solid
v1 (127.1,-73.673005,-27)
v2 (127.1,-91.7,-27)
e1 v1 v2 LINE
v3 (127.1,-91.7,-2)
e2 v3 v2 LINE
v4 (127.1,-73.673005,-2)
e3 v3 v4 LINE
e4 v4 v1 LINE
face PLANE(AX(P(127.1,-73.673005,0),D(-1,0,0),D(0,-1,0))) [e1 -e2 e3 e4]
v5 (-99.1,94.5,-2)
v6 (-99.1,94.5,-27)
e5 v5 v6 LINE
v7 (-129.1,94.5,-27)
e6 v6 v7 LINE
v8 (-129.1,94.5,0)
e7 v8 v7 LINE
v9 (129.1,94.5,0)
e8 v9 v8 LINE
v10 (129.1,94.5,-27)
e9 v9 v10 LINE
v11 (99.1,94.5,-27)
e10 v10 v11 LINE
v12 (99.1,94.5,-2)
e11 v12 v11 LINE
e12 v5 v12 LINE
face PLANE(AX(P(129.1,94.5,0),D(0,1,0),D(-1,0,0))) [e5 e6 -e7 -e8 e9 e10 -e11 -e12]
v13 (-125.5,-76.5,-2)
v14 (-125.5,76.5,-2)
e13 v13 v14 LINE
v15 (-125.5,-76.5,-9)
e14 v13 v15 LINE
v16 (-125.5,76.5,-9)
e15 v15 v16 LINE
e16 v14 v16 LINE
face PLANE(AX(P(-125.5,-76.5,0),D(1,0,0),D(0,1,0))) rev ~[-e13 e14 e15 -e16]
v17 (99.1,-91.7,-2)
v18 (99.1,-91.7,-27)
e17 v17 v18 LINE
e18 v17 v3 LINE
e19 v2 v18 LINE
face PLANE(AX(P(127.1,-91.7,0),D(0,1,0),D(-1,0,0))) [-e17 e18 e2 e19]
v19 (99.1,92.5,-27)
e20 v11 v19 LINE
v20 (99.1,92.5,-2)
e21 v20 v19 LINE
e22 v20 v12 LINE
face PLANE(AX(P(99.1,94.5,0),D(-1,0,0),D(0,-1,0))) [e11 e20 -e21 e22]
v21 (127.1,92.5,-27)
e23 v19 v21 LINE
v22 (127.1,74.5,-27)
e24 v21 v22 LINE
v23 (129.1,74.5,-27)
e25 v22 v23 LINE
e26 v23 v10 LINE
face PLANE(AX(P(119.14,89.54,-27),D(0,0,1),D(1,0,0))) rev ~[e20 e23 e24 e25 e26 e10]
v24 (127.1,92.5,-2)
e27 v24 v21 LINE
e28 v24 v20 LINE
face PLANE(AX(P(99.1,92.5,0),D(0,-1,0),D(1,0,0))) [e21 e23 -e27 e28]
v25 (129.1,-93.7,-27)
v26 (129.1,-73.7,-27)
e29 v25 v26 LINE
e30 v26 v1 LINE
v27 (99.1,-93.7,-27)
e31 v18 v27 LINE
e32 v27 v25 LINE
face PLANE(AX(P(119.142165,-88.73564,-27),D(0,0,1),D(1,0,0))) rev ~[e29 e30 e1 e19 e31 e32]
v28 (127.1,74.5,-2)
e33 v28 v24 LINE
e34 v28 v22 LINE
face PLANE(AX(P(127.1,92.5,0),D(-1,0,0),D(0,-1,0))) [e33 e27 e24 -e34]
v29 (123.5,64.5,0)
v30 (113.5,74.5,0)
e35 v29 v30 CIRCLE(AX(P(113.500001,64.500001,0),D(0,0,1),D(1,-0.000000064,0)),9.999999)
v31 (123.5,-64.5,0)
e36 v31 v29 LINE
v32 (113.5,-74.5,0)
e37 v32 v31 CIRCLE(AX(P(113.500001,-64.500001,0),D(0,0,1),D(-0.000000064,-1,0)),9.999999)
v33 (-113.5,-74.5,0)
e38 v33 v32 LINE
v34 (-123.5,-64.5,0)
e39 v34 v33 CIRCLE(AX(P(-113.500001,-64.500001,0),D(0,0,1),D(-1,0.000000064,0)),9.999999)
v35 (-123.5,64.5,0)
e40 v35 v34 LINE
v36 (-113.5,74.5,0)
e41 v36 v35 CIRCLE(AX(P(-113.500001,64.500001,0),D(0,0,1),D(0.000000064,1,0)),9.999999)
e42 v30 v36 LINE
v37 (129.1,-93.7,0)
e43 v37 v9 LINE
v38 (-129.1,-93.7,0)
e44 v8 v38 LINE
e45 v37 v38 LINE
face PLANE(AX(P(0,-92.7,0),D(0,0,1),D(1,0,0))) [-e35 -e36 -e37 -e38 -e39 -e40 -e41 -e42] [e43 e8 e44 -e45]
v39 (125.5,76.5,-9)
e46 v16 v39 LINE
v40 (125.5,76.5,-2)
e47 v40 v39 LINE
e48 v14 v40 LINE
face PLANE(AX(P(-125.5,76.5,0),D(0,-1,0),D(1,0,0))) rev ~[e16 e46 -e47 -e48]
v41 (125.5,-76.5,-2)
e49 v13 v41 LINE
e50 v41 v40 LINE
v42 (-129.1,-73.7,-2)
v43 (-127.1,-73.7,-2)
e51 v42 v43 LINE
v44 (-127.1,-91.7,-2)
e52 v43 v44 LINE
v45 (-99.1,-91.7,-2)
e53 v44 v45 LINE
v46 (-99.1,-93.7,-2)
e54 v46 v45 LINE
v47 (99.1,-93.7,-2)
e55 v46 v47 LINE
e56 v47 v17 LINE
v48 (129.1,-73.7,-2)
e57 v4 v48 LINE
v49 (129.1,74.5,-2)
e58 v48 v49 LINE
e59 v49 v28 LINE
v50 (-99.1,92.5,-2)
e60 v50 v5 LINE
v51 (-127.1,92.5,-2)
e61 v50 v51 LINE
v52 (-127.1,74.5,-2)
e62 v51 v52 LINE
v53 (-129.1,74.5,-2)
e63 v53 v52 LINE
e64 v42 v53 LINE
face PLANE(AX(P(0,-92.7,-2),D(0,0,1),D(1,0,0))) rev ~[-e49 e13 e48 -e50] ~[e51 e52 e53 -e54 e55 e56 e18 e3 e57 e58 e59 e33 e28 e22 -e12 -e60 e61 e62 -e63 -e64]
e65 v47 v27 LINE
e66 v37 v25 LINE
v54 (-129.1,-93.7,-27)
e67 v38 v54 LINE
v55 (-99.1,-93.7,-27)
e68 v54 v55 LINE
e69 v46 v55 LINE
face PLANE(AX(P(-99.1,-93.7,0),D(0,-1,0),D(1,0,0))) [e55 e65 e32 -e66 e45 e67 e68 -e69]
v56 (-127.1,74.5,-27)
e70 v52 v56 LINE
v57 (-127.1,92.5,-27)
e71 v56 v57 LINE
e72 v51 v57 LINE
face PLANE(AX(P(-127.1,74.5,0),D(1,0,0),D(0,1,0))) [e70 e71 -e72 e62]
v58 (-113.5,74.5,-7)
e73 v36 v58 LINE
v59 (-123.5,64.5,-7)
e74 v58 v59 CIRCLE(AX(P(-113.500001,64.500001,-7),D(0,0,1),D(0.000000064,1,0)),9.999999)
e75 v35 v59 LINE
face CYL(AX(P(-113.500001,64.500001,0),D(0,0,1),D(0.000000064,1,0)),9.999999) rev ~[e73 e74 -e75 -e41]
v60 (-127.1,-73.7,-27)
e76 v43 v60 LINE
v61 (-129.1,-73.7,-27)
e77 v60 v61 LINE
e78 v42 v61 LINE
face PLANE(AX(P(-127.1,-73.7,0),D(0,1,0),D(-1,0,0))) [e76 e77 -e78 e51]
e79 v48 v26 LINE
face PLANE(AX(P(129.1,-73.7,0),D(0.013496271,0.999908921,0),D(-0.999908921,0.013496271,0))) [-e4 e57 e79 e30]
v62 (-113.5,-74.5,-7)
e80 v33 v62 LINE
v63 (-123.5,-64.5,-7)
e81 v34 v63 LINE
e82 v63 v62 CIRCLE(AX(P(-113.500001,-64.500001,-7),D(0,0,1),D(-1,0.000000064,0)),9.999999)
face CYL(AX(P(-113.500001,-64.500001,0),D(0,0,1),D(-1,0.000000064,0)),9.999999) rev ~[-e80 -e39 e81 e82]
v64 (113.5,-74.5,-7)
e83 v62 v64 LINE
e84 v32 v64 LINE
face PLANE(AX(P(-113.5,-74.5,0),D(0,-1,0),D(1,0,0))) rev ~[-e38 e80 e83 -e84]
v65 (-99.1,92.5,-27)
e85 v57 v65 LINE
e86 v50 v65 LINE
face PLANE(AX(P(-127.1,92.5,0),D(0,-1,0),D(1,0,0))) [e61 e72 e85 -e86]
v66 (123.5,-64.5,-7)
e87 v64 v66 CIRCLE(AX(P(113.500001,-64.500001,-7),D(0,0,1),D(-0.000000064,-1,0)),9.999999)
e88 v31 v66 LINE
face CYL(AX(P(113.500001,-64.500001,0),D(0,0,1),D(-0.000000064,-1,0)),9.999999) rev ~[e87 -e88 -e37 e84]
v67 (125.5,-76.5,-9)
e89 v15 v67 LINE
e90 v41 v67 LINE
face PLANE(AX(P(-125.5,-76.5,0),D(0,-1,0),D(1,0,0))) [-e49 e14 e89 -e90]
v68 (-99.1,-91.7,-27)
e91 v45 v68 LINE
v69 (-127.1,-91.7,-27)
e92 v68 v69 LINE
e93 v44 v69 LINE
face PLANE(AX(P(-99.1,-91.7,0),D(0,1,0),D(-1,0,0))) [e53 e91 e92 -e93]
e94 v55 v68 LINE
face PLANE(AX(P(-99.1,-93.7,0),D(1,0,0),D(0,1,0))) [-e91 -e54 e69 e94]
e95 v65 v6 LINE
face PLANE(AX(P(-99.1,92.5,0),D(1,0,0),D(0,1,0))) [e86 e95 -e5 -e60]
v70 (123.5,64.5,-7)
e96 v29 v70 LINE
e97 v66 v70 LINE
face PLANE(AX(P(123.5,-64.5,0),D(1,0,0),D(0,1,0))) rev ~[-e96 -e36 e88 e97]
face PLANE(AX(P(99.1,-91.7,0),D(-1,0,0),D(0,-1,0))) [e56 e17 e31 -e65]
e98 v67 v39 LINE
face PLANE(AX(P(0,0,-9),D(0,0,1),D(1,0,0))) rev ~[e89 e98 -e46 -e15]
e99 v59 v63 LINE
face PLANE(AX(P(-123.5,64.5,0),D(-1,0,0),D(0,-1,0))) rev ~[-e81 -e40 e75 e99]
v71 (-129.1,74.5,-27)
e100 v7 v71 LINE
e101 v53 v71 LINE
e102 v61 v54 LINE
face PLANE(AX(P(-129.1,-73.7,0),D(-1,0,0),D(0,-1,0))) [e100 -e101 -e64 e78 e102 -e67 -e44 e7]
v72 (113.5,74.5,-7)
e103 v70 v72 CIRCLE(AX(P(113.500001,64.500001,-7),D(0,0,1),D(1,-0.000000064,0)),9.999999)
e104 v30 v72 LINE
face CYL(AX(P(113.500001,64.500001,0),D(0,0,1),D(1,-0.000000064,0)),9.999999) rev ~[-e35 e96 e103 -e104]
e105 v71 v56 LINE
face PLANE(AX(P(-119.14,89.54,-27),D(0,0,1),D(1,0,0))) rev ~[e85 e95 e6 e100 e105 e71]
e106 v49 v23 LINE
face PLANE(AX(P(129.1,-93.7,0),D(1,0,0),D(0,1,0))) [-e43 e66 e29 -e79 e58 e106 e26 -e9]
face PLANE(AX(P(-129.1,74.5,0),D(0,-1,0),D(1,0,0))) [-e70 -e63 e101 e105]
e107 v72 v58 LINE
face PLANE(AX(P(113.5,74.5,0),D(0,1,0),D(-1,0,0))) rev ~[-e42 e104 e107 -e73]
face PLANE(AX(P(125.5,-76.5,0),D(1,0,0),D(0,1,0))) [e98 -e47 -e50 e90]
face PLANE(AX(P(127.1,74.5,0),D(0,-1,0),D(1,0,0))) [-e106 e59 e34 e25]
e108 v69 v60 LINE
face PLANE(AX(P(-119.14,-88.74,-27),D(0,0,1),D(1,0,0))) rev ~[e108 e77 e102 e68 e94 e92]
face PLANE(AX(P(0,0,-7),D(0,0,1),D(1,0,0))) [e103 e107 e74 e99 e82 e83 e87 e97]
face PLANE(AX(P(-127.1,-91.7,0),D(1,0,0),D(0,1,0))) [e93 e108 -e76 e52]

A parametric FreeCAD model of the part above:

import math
import FreeCAD as App
import Part
import Sketcher
from FreeCAD import Vector


def add_polygon(sketch, points):
    """Adds a closed chain of lines whose ends are joined by coincident constraints."""
    first, n = sketch.GeometryCount, len(points)
    for a, b in zip(points, points[1:] + points[:1]):
        sketch.addGeometry(Part.LineSegment(App.Vector(*a, 0), App.Vector(*b, 0)), False)
    for i in range(n):
        sketch.addConstraint(Sketcher.Constraint("Coincident", first + i, 2, first + (i + 1) % n, 1))

doc = App.newDocument("Part")
body = doc.addObject("PartDesign::Body", "Body")
body.AllowCompound = True

# Sketch on XY plane
sketch1 = body.newObject("Sketcher::SketchObject", "Sketch")
sketch1.AttachmentSupport = (doc.getObject("XY_Plane"), [""])
sketch1.MapMode = "FlatFace"
add_polygon(sketch1, [(99.1, 94.5), (99.1, 92.5), (127.1, 92.5), (127.1, 74.5), (129.1, 74.5), (129.1, 94.5)])  # lines 0-5
add_polygon(sketch1, [(129.1, -73.7), (127.1, -73.7), (127.1, -91.7), (99.1, -91.7), (99.1, -93.7), (129.1, -93.7)])  # lines 6-11
add_polygon(sketch1, [(-127.1, -91.7), (-127.1, -73.7), (-129.1, -73.7), (-129.1, -93.7), (-99.1, -93.7), (-99.1, -91.7)])  # lines 12-17
add_polygon(sketch1, [(-127.1, 74.5), (-127.1, 92.5), (-99.1, 92.5), (-99.1, 94.5), (-129.1, 94.5), (-129.1, 74.5)])  # lines 18-23
sketch1.addConstraint([
    Sketcher.Constraint("Vertical", 0),
    Sketcher.Constraint("Horizontal", 1),
    Sketcher.Constraint("Vertical", 2),
    Sketcher.Constraint("Horizontal", 3),
    Sketcher.Constraint("Vertical", 4),
    Sketcher.Constraint("Horizontal", 5),
    Sketcher.Constraint("Vertical", 7),
    Sketcher.Constraint("Horizontal", 8),
    Sketcher.Constraint("Vertical", 9),
    Sketcher.Constraint("Horizontal", 10),
    Sketcher.Constraint("Vertical", 11),
    Sketcher.Constraint("Vertical", 12),
    Sketcher.Constraint("Horizontal", 13),
    Sketcher.Constraint("Vertical", 14),
    Sketcher.Constraint("Horizontal", 15),
    Sketcher.Constraint("Vertical", 16),
    Sketcher.Constraint("Horizontal", 17),
    Sketcher.Constraint("Vertical", 18),
    Sketcher.Constraint("Horizontal", 19),
    Sketcher.Constraint("Vertical", 20),
    Sketcher.Constraint("Horizontal", 21),
    Sketcher.Constraint("Vertical", 22),
    Sketcher.Constraint("Horizontal", 23),
    Sketcher.Constraint("Symmetric", 11, 2, 13, 2, -2),
    Sketcher.Constraint("Symmetric", 9, 2, 15, 2, -2),
    Sketcher.Constraint("Symmetric", 7, 2, 17, 2, -2),
    Sketcher.Constraint("Symmetric", 1, 2, 18, 2, -2),
    Sketcher.Constraint("Symmetric", 5, 2, 20, 2, -2),
    Sketcher.Constraint("Symmetric", 3, 2, 22, 2, -2),
    Sketcher.Constraint("Vertical", 2, 2, 6, 2),
    Sketcher.Constraint("Vertical", 5, 2, 8, 2),
    Sketcher.Constraint("Vertical", 4, 2, 10, 2),
    Sketcher.Constraint("Equal", 23, 0),
    Sketcher.Constraint("Equal", 0, 9),
    Sketcher.Constraint("Equal", 4, 11),
    Sketcher.Constraint("DistanceX", 1, 1, 1, 2, 28.0),
    Sketcher.Constraint("DistanceX", 3, 1, 3, 2, 2.0),
    Sketcher.Constraint("DistanceY", 2, 2, 2, 1, 18.0),
    Sketcher.Constraint("DistanceX", -1, 1, 0, 2, 99.1),
    Sketcher.Constraint("DistanceY", -1, 1, 0, 2, 92.5),
    Sketcher.Constraint("DistanceY", 7, 2, -1, 1, 91.7),
    Sketcher.Constraint("DistanceY", 7, 2, 7, 1, 18.026995),
])
pad1 = body.newObject("PartDesign::Pad", "Pad")
pad1.Profile = sketch1
pad1.Length = 27
pad1.Reversed = True

# Sketch on XY plane
sketch2 = body.newObject("Sketcher::SketchObject", "Sketch001")
sketch2.AttachmentSupport = (doc.getObject("XY_Plane"), [""])
sketch2.MapMode = "FlatFace"
add_polygon(sketch2, [(-127, 92), (-127, -92), (127, -92), (127, 92)])  # lines 0-3
sketch2.addGeometry(Part.LineSegment(Vector(-124, -64, 0), Vector(-124, 64, 0)), False)  # 4
sketch2.addGeometry(Part.ArcOfCircle(Part.Circle(Vector(-114, 65, 0), Vector(0, 0, 1), 10), math.radians(90), math.radians(180)), False)  # 5
sketch2.addGeometry(Part.LineSegment(Vector(-114, 74, 0), Vector(114, 74, 0)), False)  # 6
sketch2.addGeometry(Part.ArcOfCircle(Part.Circle(Vector(114, 65, 0), Vector(0, 0, 1), 10), math.radians(0), math.radians(90)), False)  # 7
sketch2.addGeometry(Part.LineSegment(Vector(124, 64, 0), Vector(124, -64, 0)), False)  # 8
sketch2.addGeometry(Part.ArcOfCircle(Part.Circle(Vector(114, -65, 0), Vector(0, 0, 1), 10), math.radians(-90), math.radians(0)), False)  # 9
sketch2.addGeometry(Part.LineSegment(Vector(114, -74, 0), Vector(-114, -74, 0)), False)  # 10
sketch2.addGeometry(Part.ArcOfCircle(Part.Circle(Vector(-114, -65, 0), Vector(0, 0, 1), 10), math.radians(180), math.radians(270)), False)  # 11
sketch2.addConstraint([
    Sketcher.Constraint("Tangent", 4, 2, 5, 2),
    Sketcher.Constraint("Tangent", 5, 1, 6, 1),
    Sketcher.Constraint("Tangent", 6, 2, 7, 2),
    Sketcher.Constraint("Tangent", 7, 1, 8, 1),
    Sketcher.Constraint("Tangent", 8, 2, 9, 2),
    Sketcher.Constraint("Tangent", 9, 1, 10, 1),
    Sketcher.Constraint("Tangent", 10, 2, 11, 2),
    Sketcher.Constraint("Tangent", 11, 1, 4, 1),
    Sketcher.Constraint("Vertical", 0),
    Sketcher.Constraint("Horizontal", 1),
    Sketcher.Constraint("Vertical", 2),
    Sketcher.Constraint("Horizontal", 3),
    Sketcher.Constraint("Vertical", 4),
    Sketcher.Constraint("Horizontal", 6),
    Sketcher.Constraint("Vertical", 8),
    Sketcher.Constraint("Horizontal", 10),
    Sketcher.Constraint("Equal", 5, 7),
    Sketcher.Constraint("Equal", 7, 9),
    Sketcher.Constraint("Equal", 9, 11),
    Sketcher.Constraint("Symmetric", 5, 3, 9, 3, -1, 1),
    Sketcher.Constraint("Radius", 5, 9.999999),
    Sketcher.Constraint("DistanceX", 6, 1, 6, 2, 227.0),
    Sketcher.Constraint("DistanceY", 4, 1, 4, 2, 129.0),
    Sketcher.Constraint("DistanceX", 1, 1, 1, 2, 254.2),
    Sketcher.Constraint("DistanceY", 0, 2, 0, 1, 184.2),
    Sketcher.Constraint("DistanceY", 7, 3, 2, 2, 27.999999),
    Sketcher.Constraint("DistanceX", 0, 2, -1, 1, 127.1),
])
pad2 = body.newObject("PartDesign::Pad", "Pad001")
pad2.Profile = sketch2
pad2.Length = 2
pad2.Reversed = True

# Sketch on XY plane
sketch3 = body.newObject("Sketcher::SketchObject", "Sketch002")
sketch3.AttachmentSupport = (doc.getObject("XY_Plane"), [""])
sketch3.MapMode = "FlatFace"
add_polygon(sketch3, [(-99.1, -91.7), (-99.1, -93.7), (99.1, -93.7), (99.1, -91.7)])  # lines 0-3
add_polygon(sketch3, [(-99.1, 94.5), (-99.1, 92.5), (99.1, 92.5), (99.1, 94.5)])  # lines 4-7
add_polygon(sketch3, [(-129.1, 74.5), (-129.1, -73.7), (-127.1, -73.7), (-127.1, 74.5)])  # lines 8-11
add_polygon(sketch3, [(129.1, 74.5), (127.1, 74.5), (127.1, -73.7), (129.1, -73.7)])  # lines 12-15
sketch3.addConstraint([
    Sketcher.Constraint("Vertical", 0),
    Sketcher.Constraint("Horizontal", 1),
    Sketcher.Constraint("Vertical", 2),
    Sketcher.Constraint("Horizontal", 3),
    Sketcher.Constraint("Vertical", 4),
    Sketcher.Constraint("Horizontal", 5),
    Sketcher.Constraint("Vertical", 6),
    Sketcher.Constraint("Horizontal", 7),
    Sketcher.Constraint("Vertical", 8),
    Sketcher.Constraint("Horizontal", 9),
    Sketcher.Constraint("Vertical", 10),
    Sketcher.Constraint("Horizontal", 11),
    Sketcher.Constraint("Horizontal", 12),
    Sketcher.Constraint("Vertical", 13),
    Sketcher.Constraint("Vertical", 15),
    Sketcher.Constraint("Symmetric", 10, 2, 12, 2, -2),
    Sketcher.Constraint("Symmetric", 8, 2, 14, 2, -2),
    Sketcher.Constraint("Vertical", 3, 2, 4, 2),
    Sketcher.Constraint("Vertical", 2, 2, 5, 2),
    Sketcher.Constraint("Equal", 12, 0),
    Sketcher.Constraint("Equal", 2, 4),
    Sketcher.Constraint("DistanceX", 9, 1, 9, 2, 2.0),
    Sketcher.Constraint("DistanceX", 1, 1, 1, 2, 198.2),
    Sketcher.Constraint("DistanceY", 8, 2, 8, 1, 148.2),
    Sketcher.Constraint("DistanceX", 8, 2, 3, 2, 30.0),
    Sketcher.Constraint("DistanceY", 3, 2, 8, 2, 18.0),
    Sketcher.Constraint("DistanceY", 10, 2, 4, 2, 18.0),
    Sketcher.Constraint("DistanceX", 5, 2, 12, 2, 28.0),
    Sketcher.Constraint("DistanceY", 0, 2, -1, 1, 93.7),
    Sketcher.Constraint("DistanceY", 13, 2, 13, 1, 148.173005),
])
pad3 = body.newObject("PartDesign::Pad", "Pad002")
pad3.Profile = sketch3
pad3.Length = 2
pad3.Reversed = True

# Sketch on XY plane
sketch4 = body.newObject("Sketcher::SketchObject", "Sketch003")
sketch4.AttachmentSupport = (doc.getObject("XY_Plane"), [""])
sketch4.MapMode = "FlatFace"
add_polygon(sketch4, [(-126, 76), (-126, -76), (126, -76), (126, 76)])  # lines 0-3
sketch4.addConstraint([
    Sketcher.Constraint("Vertical", 0),
    Sketcher.Constraint("Horizontal", 1),
    Sketcher.Constraint("Vertical", 2),
    Sketcher.Constraint("Horizontal", 3),
    Sketcher.Constraint("Symmetric", 0, 2, 2, 2, -1, 1),
    Sketcher.Constraint("DistanceX", 1, 1, 1, 2, 251.0),
    Sketcher.Constraint("DistanceY", 0, 2, 0, 1, 153.0),
])
pad4 = body.newObject("PartDesign::Pad", "Pad003")
pad4.Profile = sketch4
pad4.Length = 9
pad4.Reversed = True

# Sketch on XY plane
sketch5 = body.newObject("Sketcher::SketchObject", "Sketch004")
sketch5.AttachmentSupport = (doc.getObject("XY_Plane"), [""])
sketch5.MapMode = "FlatFace"
sketch5.addGeometry([
    Part.LineSegment(Vector(114, 74, 0), Vector(-114, 74, 0)),  # 0
    Part.ArcOfCircle(Part.Circle(Vector(-114, 65, 0), Vector(0, 0, 1), 10), math.radians(90), math.radians(180)),  # 1
    Part.LineSegment(Vector(-124, 64, 0), Vector(-124, -64, 0)),  # 2
    Part.ArcOfCircle(Part.Circle(Vector(-114, -65, 0), Vector(0, 0, 1), 10), math.radians(180), math.radians(270)),  # 3
    Part.LineSegment(Vector(-114, -74, 0), Vector(114, -74, 0)),  # 4
    Part.ArcOfCircle(Part.Circle(Vector(114, -65, 0), Vector(0, 0, 1), 10), math.radians(-90), math.radians(0)),  # 5
    Part.LineSegment(Vector(124, -64, 0), Vector(124, 64, 0)),  # 6
    Part.ArcOfCircle(Part.Circle(Vector(114, 65, 0), Vector(0, 0, 1), 10), math.radians(0), math.radians(90)),  # 7
], False)
sketch5.addConstraint([
    Sketcher.Constraint("Tangent", 0, 2, 1, 1),
    Sketcher.Constraint("Tangent", 1, 2, 2, 1),
    Sketcher.Constraint("Tangent", 2, 2, 3, 1),
    Sketcher.Constraint("Tangent", 3, 2, 4, 1),
    Sketcher.Constraint("Tangent", 4, 2, 5, 1),
    Sketcher.Constraint("Tangent", 5, 2, 6, 1),
    Sketcher.Constraint("Tangent", 6, 2, 7, 1),
    Sketcher.Constraint("Tangent", 7, 2, 0, 1),
    Sketcher.Constraint("Horizontal", 0),
    Sketcher.Constraint("Vertical", 2),
    Sketcher.Constraint("Horizontal", 4),
    Sketcher.Constraint("Vertical", 6),
    Sketcher.Constraint("Equal", 1, 3),
    Sketcher.Constraint("Equal", 3, 5),
    Sketcher.Constraint("Equal", 5, 7),
    Sketcher.Constraint("Symmetric", 1, 3, 5, 3, -1, 1),
    Sketcher.Constraint("Radius", 1, 9.999999),
    Sketcher.Constraint("DistanceX", 0, 2, 0, 1, 227.0),
    Sketcher.Constraint("DistanceY", 2, 2, 2, 1, 129.0),
])
pocket1 = body.newObject("PartDesign::Pocket", "Pocket")
pocket1.Profile = sketch5
pocket1.Length = 7

doc.recompute()
